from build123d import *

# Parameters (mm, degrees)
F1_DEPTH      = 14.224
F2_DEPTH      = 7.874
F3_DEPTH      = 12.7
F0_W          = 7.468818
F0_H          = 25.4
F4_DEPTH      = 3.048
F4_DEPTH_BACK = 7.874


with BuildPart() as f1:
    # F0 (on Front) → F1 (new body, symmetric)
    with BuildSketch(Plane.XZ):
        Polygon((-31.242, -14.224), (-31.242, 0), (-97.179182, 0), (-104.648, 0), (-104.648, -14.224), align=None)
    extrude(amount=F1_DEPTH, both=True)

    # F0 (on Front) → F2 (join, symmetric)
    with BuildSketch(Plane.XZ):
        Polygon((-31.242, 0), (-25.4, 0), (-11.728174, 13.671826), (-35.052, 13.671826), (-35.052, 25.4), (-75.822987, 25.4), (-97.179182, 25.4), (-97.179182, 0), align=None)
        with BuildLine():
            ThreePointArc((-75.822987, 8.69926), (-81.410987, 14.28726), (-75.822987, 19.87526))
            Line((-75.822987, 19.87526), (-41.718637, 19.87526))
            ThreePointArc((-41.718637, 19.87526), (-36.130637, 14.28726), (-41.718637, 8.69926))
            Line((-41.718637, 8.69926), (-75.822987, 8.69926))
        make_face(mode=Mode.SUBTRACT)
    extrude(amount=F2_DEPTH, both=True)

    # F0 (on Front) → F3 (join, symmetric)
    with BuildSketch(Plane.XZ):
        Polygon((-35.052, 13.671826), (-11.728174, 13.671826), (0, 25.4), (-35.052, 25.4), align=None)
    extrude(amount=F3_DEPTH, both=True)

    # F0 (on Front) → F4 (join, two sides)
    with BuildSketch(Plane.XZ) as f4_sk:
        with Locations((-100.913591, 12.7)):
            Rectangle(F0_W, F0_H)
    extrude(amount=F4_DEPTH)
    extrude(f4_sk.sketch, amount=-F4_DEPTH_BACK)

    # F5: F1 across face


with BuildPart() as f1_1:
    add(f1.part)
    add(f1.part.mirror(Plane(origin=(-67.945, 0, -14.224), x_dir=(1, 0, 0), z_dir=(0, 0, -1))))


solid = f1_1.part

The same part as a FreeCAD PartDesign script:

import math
import FreeCAD as App
import Part
import Sketcher
Q = App.Units.Quantity


def add_polygon(sketch, points):
    """Adds a closed chain of lines whose ends are joined by coincident constraints."""
    first, n = sketch.GeometryCount, len(points)
    for a, b in zip(points, points[1:] + points[:1]):
        sketch.addGeometry(Part.LineSegment(App.Vector(*a, 0), App.Vector(*b, 0)), False)
    for i in range(n):
        sketch.addConstraint(Sketcher.Constraint("Coincident", first + i, 2, first + (i + 1) % n, 1))

doc = App.newDocument("Part")
params = doc.addObject("Spreadsheet::Sheet", "Params")
for row, (alias, value) in enumerate([
    ("sketch1_width", "2.89 in"),
    ("sketch1_height", "0.56 in"),
    ("pad1_length", "1.12 in"),
    ("sketch2_height", "1 in"),
    ("sketch2_radius", "0.22 in"),
    ("pad2_length", "0.62 in"),
    ("sketch3_width", "1.38 in"),
    ("pad3_length", "1 in"),
    ("sketch4_height", "1 in"),
    ("pad4_length", "0.12 in"),
    ("pad4_length2", "0.31 in"),
], start=1):
    params.set(f"A{row}", alias)
    params.set(f"B{row}", "=" + value)
    params.setAlias(f"B{row}", alias)

body = doc.addObject("PartDesign::Body", "Body")

sketch1 = body.newObject("Sketcher::SketchObject", "Sketch")
sketch1.AttachmentSupport = (doc.getObject("XZ_Plane"), [""])
sketch1.MapMode = "FlatFace"
add_polygon(sketch1, [(-31.242, -14.224), (-31.242, 0), (-104.648, 0), (-104.648, -14.224)])
sketch1.addConstraint(Sketcher.Constraint("Vertical", 0))
sketch1.addConstraint(Sketcher.Constraint("Horizontal", 1))
sketch1.addConstraint(Sketcher.Constraint("Vertical", 2))
sketch1.addConstraint(Sketcher.Constraint("Horizontal", 3))
sketch1.addConstraint(Sketcher.Constraint("PointOnObject", 0, 2, -1))
sketch1.addConstraint(Sketcher.Constraint("DistanceX", 1, 2, 1, 1, Q("2.89 in")))
sketch1.addConstraint(Sketcher.Constraint("DistanceY", 0, 1, 0, 2, Q("0.56 in")))
sketch1.addConstraint(Sketcher.Constraint("DistanceX", 0, 2, -1, 1, Q("1.23 in")))
sketch1.setExpression("Constraints[9]", "Params.sketch1_width")
sketch1.setExpression("Constraints[10]", "Params.sketch1_height")
pad1 = body.newObject("PartDesign::Pad", "Pad")
pad1.Profile = sketch1
pad1.setExpression("Length", "Params.pad1_length")
pad1.Midplane = True

sketch2 = body.newObject("Sketcher::SketchObject", "Sketch001")
sketch2.AttachmentSupport = (doc.getObject("XZ_Plane"), [""])
sketch2.MapMode = "FlatFace"
add_polygon(sketch2, [(-25.4, 0), (-11.728174, 13.671826), (-35.052, 13.671826), (-35.052, 25.4), (-97.179182, 25.4), (-97.179182, 0)])
sketch2.addGeometry(Part.LineSegment(App.Vector(-41.718637, 8.69926, 0), App.Vector(-75.822987, 8.69926, 0)), False)
sketch2.addGeometry(Part.ArcOfCircle(Part.Circle(App.Vector(-75.822987, 14.28726, 0), App.Vector(0, 0, 1), 5.588), math.radians(90), math.radians(270)), False)
sketch2.addGeometry(Part.LineSegment(App.Vector(-75.822987, 19.87526, 0), App.Vector(-41.718637, 19.87526, 0)), False)
sketch2.addGeometry(Part.ArcOfCircle(Part.Circle(App.Vector(-41.718637, 14.28726, 0), App.Vector(0, 0, 1), 5.588), math.radians(-90), math.radians(90)), False)
sketch2.addConstraint(Sketcher.Constraint("Tangent", 6, 2, 7, 2))
sketch2.addConstraint(Sketcher.Constraint("Tangent", 7, 1, 8, 1))
sketch2.addConstraint(Sketcher.Constraint("Tangent", 8, 2, 9, 2))
sketch2.addConstraint(Sketcher.Constraint("Tangent", 9, 1, 6, 1))
sketch2.addConstraint(Sketcher.Constraint("Horizontal", 1))
sketch2.addConstraint(Sketcher.Constraint("Vertical", 2))
sketch2.addConstraint(Sketcher.Constraint("Horizontal", 3))
sketch2.addConstraint(Sketcher.Constraint("Vertical", 4))
sketch2.addConstraint(Sketcher.Constraint("Horizontal", 5))
sketch2.addConstraint(Sketcher.Constraint("Horizontal", 6))
sketch2.addConstraint(Sketcher.Constraint("Horizontal", 8))
sketch2.addConstraint(Sketcher.Constraint("PointOnObject", 4, 2, -1))
sketch2.addConstraint(Sketcher.Constraint("DistanceY", 4, 2, 4, 1, Q("1 in")))
sketch2.addConstraint(Sketcher.Constraint("Radius", 7, Q("0.22 in")))
sketch2.addConstraint(Sketcher.Constraint("DistanceX", 5, 2, -1, 1, Q("1 in")))
sketch2.addConstraint(Sketcher.Constraint("Angle", 0, Q("45 deg")))
sketch2.addConstraint(Sketcher.Constraint("DistanceX", 1, 2, -1, 1, Q("1.38 in")))
sketch2.addConstraint(Sketcher.Constraint("DistanceX", 3, 2, 3, 1, Q("62.127182 mm")))
sketch2.addConstraint(Sketcher.Constraint("DistanceX", 6, 2, 6, 1, Q("34.10435 mm")))
sketch2.addConstraint(Sketcher.Constraint("Distance", 0, Q("19.334882 mm")))
sketch2.addConstraint(Sketcher.Constraint("DistanceY", -1, 1, 7, 3, Q("14.28726 mm")))
sketch2.addConstraint(Sketcher.Constraint("DistanceX", 7, 3, -1, 1, Q("75.822987 mm")))
sketch2.setExpression("Constraints[18]", "Params.sketch2_height")
sketch2.setExpression("Constraints[19]", "Params.sketch2_radius")
pad2 = body.newObject("PartDesign::Pad", "Pad001")
pad2.Profile = sketch2
pad2.setExpression("Length", "Params.pad2_length")
pad2.Midplane = True

sketch3 = body.newObject("Sketcher::SketchObject", "Sketch002")
sketch3.AttachmentSupport = (doc.getObject("XZ_Plane"), [""])
sketch3.MapMode = "FlatFace"
add_polygon(sketch3, [(-35.052, 13.671826), (-11.728174, 13.671826), (0, 25.4), (-35.052, 25.4)])
sketch3.addConstraint(Sketcher.Constraint("Horizontal", 0))
sketch3.addConstraint(Sketcher.Constraint("Horizontal", 2))
sketch3.addConstraint(Sketcher.Constraint("Vertical", 3))
sketch3.addConstraint(Sketcher.Constraint("PointOnObject", 1, 2, -2))
sketch3.addConstraint(Sketcher.Constraint("DistanceY", -1, 1, 1, 2, Q("1 in")))
sketch3.addConstraint(Sketcher.Constraint("Angle", 1, Q("45 deg")))
sketch3.addConstraint(Sketcher.Constraint("DistanceX", 2, 2, 2, 1, Q("1.38 in")))
sketch3.addConstraint(Sketcher.Constraint("DistanceX", 0, 1, 0, 2, Q("23.323826 mm")))
sketch3.setExpression("Constraints[10]", "Params.sketch3_width")
pad3 = body.newObject("PartDesign::Pad", "Pad002")
pad3.Profile = sketch3
pad3.setExpression("Length", "Params.pad3_length")
pad3.Midplane = True

sketch4 = body.newObject("Sketcher::SketchObject", "Sketch003")
sketch4.AttachmentSupport = (doc.getObject("XZ_Plane"), [""])
sketch4.MapMode = "FlatFace"
add_polygon(sketch4, [(-104.648, 25.4), (-104.648, 0), (-97.179182, 0), (-97.179182, 25.4)])
sketch4.addConstraint(Sketcher.Constraint("Vertical", 0))
sketch4.addConstraint(Sketcher.Constraint("Horizontal", 1))
sketch4.addConstraint(Sketcher.Constraint("Vertical", 2))
sketch4.addConstraint(Sketcher.Constraint("Horizontal", 3))
sketch4.addConstraint(Sketcher.Constraint("PointOnObject", 0, 2, -1))
sketch4.addConstraint(Sketcher.Constraint("DistanceY", 0, 2, 0, 1, Q("1 in")))
sketch4.addConstraint(Sketcher.Constraint("DistanceX", 0, 2, -1, 1, Q("4.12 in")))
sketch4.addConstraint(Sketcher.Constraint("DistanceX", 1, 1, 1, 2, Q("7.468818 mm")))
sketch4.setExpression("Constraints[9]", "Params.sketch4_height")
pad4 = body.newObject("PartDesign::Pad", "Pad003")
pad4.Profile = sketch4
pad4.Type = "TwoLengths"
pad4.setExpression("Length", "Params.pad4_length")
pad4.setExpression("Length2", "Params.pad4_length2")
body2 = doc.addObject("PartDesign::Body", "Body001")
doc.recompute()

body2.BaseFeature = body
doc.recompute()

mirroring = doc.addObject("Part::Mirroring", "Mirroring")
mirroring.Source = body
mirroring.Base = App.Vector(-67.945, 0, -14.224)
mirroring.Normal = App.Vector(0, 0, -1)
body3 = doc.addObject("PartDesign::Body", "Body002")
body3.BaseFeature = mirroring
boolean = body2.newObject("PartDesign::Boolean", "Boolean")
boolean.Type = "Fuse"
boolean.addObjects([body3])
doc.recompute()
mirroring.Visibility = False

doc.recompute()
